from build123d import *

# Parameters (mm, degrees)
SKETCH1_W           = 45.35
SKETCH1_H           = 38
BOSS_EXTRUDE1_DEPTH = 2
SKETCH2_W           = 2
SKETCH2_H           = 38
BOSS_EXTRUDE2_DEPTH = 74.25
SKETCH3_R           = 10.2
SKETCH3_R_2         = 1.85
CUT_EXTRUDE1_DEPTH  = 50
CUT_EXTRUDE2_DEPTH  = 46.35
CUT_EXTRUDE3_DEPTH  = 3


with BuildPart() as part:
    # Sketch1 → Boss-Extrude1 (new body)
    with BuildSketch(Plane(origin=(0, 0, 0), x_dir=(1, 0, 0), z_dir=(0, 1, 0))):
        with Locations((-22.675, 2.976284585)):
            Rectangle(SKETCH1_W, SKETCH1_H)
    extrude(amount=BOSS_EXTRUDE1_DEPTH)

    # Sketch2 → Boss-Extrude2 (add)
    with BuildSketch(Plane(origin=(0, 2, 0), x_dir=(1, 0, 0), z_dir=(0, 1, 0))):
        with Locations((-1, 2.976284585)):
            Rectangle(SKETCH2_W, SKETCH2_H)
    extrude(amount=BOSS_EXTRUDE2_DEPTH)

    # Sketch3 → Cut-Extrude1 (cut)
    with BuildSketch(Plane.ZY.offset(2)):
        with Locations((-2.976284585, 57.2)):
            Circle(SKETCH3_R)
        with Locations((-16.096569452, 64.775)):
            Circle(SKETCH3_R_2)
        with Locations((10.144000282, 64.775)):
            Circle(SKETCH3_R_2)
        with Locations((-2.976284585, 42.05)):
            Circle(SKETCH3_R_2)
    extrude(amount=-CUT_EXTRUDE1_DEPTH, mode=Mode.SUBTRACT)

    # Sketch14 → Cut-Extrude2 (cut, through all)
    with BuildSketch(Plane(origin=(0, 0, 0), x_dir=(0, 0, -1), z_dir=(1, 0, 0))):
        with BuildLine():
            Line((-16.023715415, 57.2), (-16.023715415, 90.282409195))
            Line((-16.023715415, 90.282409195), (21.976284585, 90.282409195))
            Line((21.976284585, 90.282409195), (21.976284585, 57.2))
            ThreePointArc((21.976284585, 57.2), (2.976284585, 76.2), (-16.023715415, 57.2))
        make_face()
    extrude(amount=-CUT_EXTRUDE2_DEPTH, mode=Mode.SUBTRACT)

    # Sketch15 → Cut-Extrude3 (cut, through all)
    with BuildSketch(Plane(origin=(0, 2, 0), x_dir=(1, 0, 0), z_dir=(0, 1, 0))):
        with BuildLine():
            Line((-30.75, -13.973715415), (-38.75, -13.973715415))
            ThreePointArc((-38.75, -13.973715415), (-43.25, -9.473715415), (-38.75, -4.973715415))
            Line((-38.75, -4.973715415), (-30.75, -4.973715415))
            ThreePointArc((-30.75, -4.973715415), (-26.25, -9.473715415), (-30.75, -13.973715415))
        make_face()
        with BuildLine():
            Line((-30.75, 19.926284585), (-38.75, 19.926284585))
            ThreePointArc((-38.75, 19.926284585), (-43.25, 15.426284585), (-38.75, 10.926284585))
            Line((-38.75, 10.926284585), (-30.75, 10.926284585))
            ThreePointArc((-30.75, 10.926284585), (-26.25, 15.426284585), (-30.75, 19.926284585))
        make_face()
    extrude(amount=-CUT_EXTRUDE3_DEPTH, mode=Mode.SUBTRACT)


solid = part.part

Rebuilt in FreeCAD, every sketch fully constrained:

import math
import FreeCAD as App
import Part
import Sketcher
Q = App.Units.Quantity

doc = App.newDocument("Part")
body = doc.addObject("PartDesign::Body", "Body")

# Sketch on XZ plane
sketch1 = body.newObject("Sketcher::SketchObject", "Sketch")
sketch1.AttachmentSupport = (doc.getObject("XZ_Plane"), [""])
sketch1.MapMode = "FlatFace"
sketch1.addGeometry([
    Part.LineSegment(App.Vector(-45, -22, 0), App.Vector(-45, 16, 0)),
    Part.LineSegment(App.Vector(-45, 16, 0), App.Vector(0, 16, 0)),
    Part.LineSegment(App.Vector(0, 16, 0), App.Vector(0, -22, 0)),
    Part.LineSegment(App.Vector(0, -22, 0), App.Vector(-45, -22, 0)),
], False)
sketch1.addConstraint([
    Sketcher.Constraint("Coincident", 0, 2, 1, 1),
    Sketcher.Constraint("Coincident", 1, 2, 2, 1),
    Sketcher.Constraint("Coincident", 2, 2, 3, 1),
    Sketcher.Constraint("Coincident", 3, 2, 0, 1),
    Sketcher.Constraint("Vertical", 0),
    Sketcher.Constraint("Horizontal", 1),
    Sketcher.Constraint("Vertical", 2),
    Sketcher.Constraint("Horizontal", 3),
    Sketcher.Constraint("PointOnObject", 1, 2, -2),
    Sketcher.Constraint("DistanceY", 0, 1, 0, 2, Q("38 mm")),
    Sketcher.Constraint("DistanceX", 1, 1, 1, 2, Q("45.35 mm")),
    Sketcher.Constraint("DistanceY", -1, 1, 0, 2, Q("16.023715 mm")),
])
pad1 = body.newObject("PartDesign::Pad", "Pad")
pad1.Profile = sketch1
pad1.Length = 2
pad1.Reversed = True

# Sketch on XZ plane
sketch2 = body.newObject("Sketcher::SketchObject", "Sketch001")
sketch2.AttachmentSupport = (doc.getObject("XZ_Plane"), [""])
sketch2.MapMode = "FlatFace"
sketch2.AttachmentOffset = App.Placement(App.Vector(0, 0, -2), App.Rotation())
sketch2.addGeometry([
    Part.LineSegment(App.Vector(-2, -22, 0), App.Vector(-2, 16, 0)),
    Part.LineSegment(App.Vector(-2, 16, 0), App.Vector(0, 16, 0)),
    Part.LineSegment(App.Vector(0, 16, 0), App.Vector(0, -22, 0)),
    Part.LineSegment(App.Vector(0, -22, 0), App.Vector(-2, -22, 0)),
], False)
sketch2.addConstraint([
    Sketcher.Constraint("Coincident", 0, 2, 1, 1),
    Sketcher.Constraint("Coincident", 1, 2, 2, 1),
    Sketcher.Constraint("Coincident", 2, 2, 3, 1),
    Sketcher.Constraint("Coincident", 3, 2, 0, 1),
    Sketcher.Constraint("Vertical", 0),
    Sketcher.Constraint("Horizontal", 1),
    Sketcher.Constraint("Vertical", 2),
    Sketcher.Constraint("Horizontal", 3),
    Sketcher.Constraint("PointOnObject", 1, 2, -2),
    Sketcher.Constraint("DistanceX", 1, 1, 1, 2, Q("2 mm")),
    Sketcher.Constraint("DistanceY", 0, 1, 0, 2, Q("38 mm")),
    Sketcher.Constraint("DistanceY", -1, 1, 0, 2, Q("16.023715 mm")),
])
pad2 = body.newObject("PartDesign::Pad", "Pad001")
pad2.Profile = sketch2
pad2.Length = 74.25
pad2.Reversed = True

# Sketch on YZ plane
sketch3 = body.newObject("Sketcher::SketchObject", "Sketch002")
sketch3.AttachmentSupport = (doc.getObject("YZ_Plane"), [""])
sketch3.MapMode = "FlatFace"
sketch3.AttachmentOffset = App.Placement(App.Vector(0, 0, -2), App.Rotation())
sketch3.addGeometry([
    Part.Circle(App.Vector(57.2, -3, 0), App.Vector(0, 0, 1), 10.2),
    Part.Circle(App.Vector(64.8, -16.1, 0), App.Vector(0, 0, 1), 1.9),
    Part.Circle(App.Vector(64.8, 10.1, 0), App.Vector(0, 0, 1), 1.9),
    Part.Circle(App.Vector(42, -3, 0), App.Vector(0, 0, 1), 1.9),
], False)
sketch3.addConstraint([
    Sketcher.Constraint("Equal", 1, 2),
    Sketcher.Constraint("Equal", 2, 3),
    Sketcher.Constraint("Horizontal", 0, 3, 3, 3),
    Sketcher.Constraint("Vertical", 1, 3, 2, 3),
    Sketcher.Constraint("Diameter", 0, Q("20.4 mm")),
    Sketcher.Constraint("Diameter", 1, Q("3.7 mm")),
    Sketcher.Constraint("DistanceX", -1, 1, 0, 3, Q("57.2 mm")),
    Sketcher.Constraint("DistanceX", -1, 1, 3, 3, Q("42.05 mm")),
    Sketcher.Constraint("DistanceX", -1, 1, 1, 3, Q("64.775 mm")),
    Sketcher.Constraint("DistanceY", -1, 1, 2, 3, Q("10.144 mm")),
    Sketcher.Constraint("DistanceY", 1, 3, -1, 1, Q("16.096569 mm")),
    Sketcher.Constraint("DistanceY", 0, 3, -1, 1, Q("2.976285 mm")),
])
pocket1 = body.newObject("PartDesign::Pocket", "Pocket")
pocket1.Profile = sketch3
pocket1.Length = 50
pocket1.Reversed = True

# Sketch on YZ plane
sketch4 = body.newObject("Sketcher::SketchObject", "Sketch003")
sketch4.AttachmentSupport = (doc.getObject("YZ_Plane"), [""])
sketch4.MapMode = "FlatFace"
sketch4.addGeometry([
    Part.LineSegment(App.Vector(90, 16, 0), App.Vector(57, 16, 0)),
    Part.ArcOfCircle(Part.Circle(App.Vector(57, -3, 0), App.Vector(0, 0, 1), 19), math.radians(-90), math.radians(90)),
    Part.LineSegment(App.Vector(57, -22, 0), App.Vector(90, -22, 0)),
    Part.LineSegment(App.Vector(90, -22, 0), App.Vector(90, 16, 0)),
], False)
sketch4.addConstraint([
    Sketcher.Constraint("Tangent", 0, 2, 1, 2),
    Sketcher.Constraint("Tangent", 1, 1, 2, 1),
    Sketcher.Constraint("Coincident", 2, 2, 3, 1),
    Sketcher.Constraint("Coincident", 3, 2, 0, 1),
    Sketcher.Constraint("Horizontal", 0),
    Sketcher.Constraint("Horizontal", 2),
    Sketcher.Constraint("Vertical", 3),
    Sketcher.Constraint("Radius", 1, Q("19 mm")),
    Sketcher.Constraint("DistanceX", -1, 1, 1, 3, Q("57.2 mm")),
    Sketcher.Constraint("DistanceX", 0, 2, 0, 1, Q("33.082409 mm")),
    Sketcher.Constraint("DistanceY", 1, 3, -1, 1, Q("2.976285 mm")),
])
pocket2 = body.newObject("PartDesign::Pocket", "Pocket001")
pocket2.Profile = sketch4
pocket2.Type = "ThroughAll"

# Sketch on XZ plane
sketch5 = body.newObject("Sketcher::SketchObject", "Sketch004")
sketch5.AttachmentSupport = (doc.getObject("XZ_Plane"), [""])
sketch5.MapMode = "FlatFace"
sketch5.AttachmentOffset = App.Placement(App.Vector(0, 0, -2), App.Rotation())
sketch5.addGeometry([
    Part.LineSegment(App.Vector(-38.8, 14, 0), App.Vector(-30.8, 14, 0)),  # 0
    Part.ArcOfCircle(Part.Circle(App.Vector(-30.8, 9.5, 0), App.Vector(0, 0, 1), 4.5), math.radians(-90), math.radians(90)),  # 1
    Part.LineSegment(App.Vector(-30.8, 5, 0), App.Vector(-38.8, 5, 0)),  # 2
    Part.ArcOfCircle(Part.Circle(App.Vector(-38.8, 9.5, 0), App.Vector(0, 0, 1), 4.5), math.radians(90), math.radians(270)),  # 3
    Part.LineSegment(App.Vector(-30.8, -19.9, 0), App.Vector(-38.8, -19.9, 0)),  # 4
    Part.ArcOfCircle(Part.Circle(App.Vector(-38.8, -15.4, 0), App.Vector(0, 0, 1), 4.5), math.radians(90), math.radians(270)),  # 5
    Part.LineSegment(App.Vector(-38.8, -10.9, 0), App.Vector(-30.8, -10.9, 0)),  # 6
    Part.ArcOfCircle(Part.Circle(App.Vector(-30.8, -15.4, 0), App.Vector(0, 0, 1), 4.5), math.radians(-90), math.radians(90)),  # 7
], False)
sketch5.addConstraint([
    Sketcher.Constraint("Tangent", 0, 2, 1, 2),
    Sketcher.Constraint("Tangent", 1, 1, 2, 1),
    Sketcher.Constraint("Tangent", 2, 2, 3, 2),
    Sketcher.Constraint("Tangent", 3, 1, 0, 1),
    Sketcher.Constraint("Tangent", 4, 2, 5, 2),
    Sketcher.Constraint("Tangent", 5, 1, 6, 1),
    Sketcher.Constraint("Tangent", 6, 2, 7, 2),
    Sketcher.Constraint("Tangent", 7, 1, 4, 1),
    Sketcher.Constraint("Horizontal", 0),
    Sketcher.Constraint("Horizontal", 2),
    Sketcher.Constraint("Horizontal", 4),
    Sketcher.Constraint("Horizontal", 6),
    Sketcher.Constraint("Equal", 3, 5),
    Sketcher.Constraint("Vertical", 3, 3, 5, 3),
    Sketcher.Constraint("Vertical", 1, 3, 7, 3),
    Sketcher.Constraint("Radius", 1, Q("4.5 mm")),
    Sketcher.Constraint("DistanceX", 0, 1, 0, 2, Q("8 mm")),
    Sketcher.Constraint("DistanceY", 5, 3, 3, 3, Q("24.9 mm")),
    Sketcher.Constraint("DistanceX", 1, 3, -1, 1, Q("30.75 mm")),
    Sketcher.Constraint("DistanceY", -1, 1, 1, 3, Q("9.473715 mm")),
])
pocket3 = body.newObject("PartDesign::Pocket", "Pocket002")
pocket3.Profile = sketch5
pocket3.Type = "ThroughAll"
pocket3.Reversed = True

doc.recompute()
